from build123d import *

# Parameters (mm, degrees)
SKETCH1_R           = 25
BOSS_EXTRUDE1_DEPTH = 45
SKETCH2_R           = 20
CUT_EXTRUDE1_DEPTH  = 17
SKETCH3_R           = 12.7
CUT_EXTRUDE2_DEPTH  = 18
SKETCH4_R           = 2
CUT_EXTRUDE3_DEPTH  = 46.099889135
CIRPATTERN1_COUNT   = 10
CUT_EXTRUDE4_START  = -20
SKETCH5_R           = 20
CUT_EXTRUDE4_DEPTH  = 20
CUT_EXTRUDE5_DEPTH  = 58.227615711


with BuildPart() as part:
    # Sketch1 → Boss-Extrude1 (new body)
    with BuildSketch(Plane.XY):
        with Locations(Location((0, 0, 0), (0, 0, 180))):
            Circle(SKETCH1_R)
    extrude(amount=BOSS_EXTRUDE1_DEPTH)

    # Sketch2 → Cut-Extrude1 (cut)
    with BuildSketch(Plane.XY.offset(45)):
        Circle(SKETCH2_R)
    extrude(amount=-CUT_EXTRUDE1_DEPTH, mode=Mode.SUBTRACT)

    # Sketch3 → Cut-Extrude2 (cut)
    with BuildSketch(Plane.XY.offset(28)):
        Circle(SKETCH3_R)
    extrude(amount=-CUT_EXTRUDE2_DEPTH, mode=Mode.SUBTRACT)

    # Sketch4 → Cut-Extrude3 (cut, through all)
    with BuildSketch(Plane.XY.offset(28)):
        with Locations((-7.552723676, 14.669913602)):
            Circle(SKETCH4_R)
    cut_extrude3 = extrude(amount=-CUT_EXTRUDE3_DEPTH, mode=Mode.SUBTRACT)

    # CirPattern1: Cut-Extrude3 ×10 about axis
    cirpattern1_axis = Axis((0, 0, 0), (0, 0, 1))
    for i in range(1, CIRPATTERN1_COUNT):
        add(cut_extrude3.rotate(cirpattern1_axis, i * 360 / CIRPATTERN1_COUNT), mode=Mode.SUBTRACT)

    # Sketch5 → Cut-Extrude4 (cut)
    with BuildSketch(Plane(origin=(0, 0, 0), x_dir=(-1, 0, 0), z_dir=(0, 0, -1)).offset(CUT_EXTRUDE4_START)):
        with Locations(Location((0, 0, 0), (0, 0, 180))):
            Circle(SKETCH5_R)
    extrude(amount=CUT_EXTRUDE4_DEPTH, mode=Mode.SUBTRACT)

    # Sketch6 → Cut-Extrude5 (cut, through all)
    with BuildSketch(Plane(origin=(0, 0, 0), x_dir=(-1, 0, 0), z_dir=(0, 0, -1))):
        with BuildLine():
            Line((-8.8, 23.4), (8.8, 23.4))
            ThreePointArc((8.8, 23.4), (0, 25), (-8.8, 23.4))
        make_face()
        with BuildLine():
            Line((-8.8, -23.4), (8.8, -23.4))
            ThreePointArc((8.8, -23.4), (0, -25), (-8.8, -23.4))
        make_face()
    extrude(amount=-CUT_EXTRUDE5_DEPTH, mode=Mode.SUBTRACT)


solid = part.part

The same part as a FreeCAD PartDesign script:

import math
import FreeCAD as App
import Part
import Sketcher
from FreeCAD import Vector

doc = App.newDocument("Part")
params = doc.addObject("Spreadsheet::Sheet", "Params")
for row, (alias, value) in enumerate([
    ("sketch1_diameter", "50 mm"),
    ("pad1_length", "45 mm"),
    ("sketch2_diameter", "40 mm"),
    ("pocket1_length", "17 mm"),
    ("sketch3_diameter", "25.4 mm"),
    ("pocket2_length", "18 mm"),
    ("sketch4_diameter", "4 mm"),
    ("sketch5_diameter", "40 mm"),
    ("pocket4_length", "20 mm"),
    ("sketch6_radius", "25 mm"),
    ("sketch6_width", "17.6 mm"),
], start=1):
    params.set(f"A{row}", alias)
    params.set(f"B{row}", "=" + value)
    params.setAlias(f"B{row}", alias)

body = doc.addObject("PartDesign::Body", "Body")

sketch1 = body.newObject("Sketcher::SketchObject", "Sketch")
sketch1.AttachmentSupport = (doc.getObject("XY_Plane"), [""])
sketch1.MapMode = "FlatFace"
sketch1.addGeometry(Part.Circle(Vector(0, 0, 0), Vector(0, 0, 1), 25), False)
sketch1.addConstraint(Sketcher.Constraint("Coincident", 0, 3, -1, 1))
sketch1.addConstraint(Sketcher.Constraint("Diameter", 0, 50.0))
sketch1.setExpression("Constraints[1]", "Params.sketch1_diameter")
pad1 = body.newObject("PartDesign::Pad", "Pad")
pad1.Profile = sketch1
pad1.setExpression("Length", "Params.pad1_length")

sketch2 = body.newObject("Sketcher::SketchObject", "Sketch001")
sketch2.AttachmentSupport = (doc.getObject("XY_Plane"), [""])
sketch2.MapMode = "FlatFace"
sketch2.AttachmentOffset = App.Placement(Vector(0, 0, 45), App.Rotation())
sketch2.addGeometry(Part.Circle(Vector(0, 0, 0), Vector(0, 0, 1), 20), False)
sketch2.addConstraint(Sketcher.Constraint("Coincident", 0, 3, -1, 1))
sketch2.addConstraint(Sketcher.Constraint("Diameter", 0, 40.0))
sketch2.setExpression("Constraints[1]", "Params.sketch2_diameter")
pocket1 = body.newObject("PartDesign::Pocket", "Pocket")
pocket1.Profile = sketch2
pocket1.setExpression("Length", "Params.pocket1_length")

sketch3 = body.newObject("Sketcher::SketchObject", "Sketch002")
sketch3.AttachmentSupport = (doc.getObject("XY_Plane"), [""])
sketch3.MapMode = "FlatFace"
sketch3.AttachmentOffset = App.Placement(Vector(0, 0, 28), App.Rotation())
sketch3.addGeometry(Part.Circle(Vector(0, 0, 0), Vector(0, 0, 1), 12.7), False)
sketch3.addConstraint(Sketcher.Constraint("Coincident", 0, 3, -1, 1))
sketch3.addConstraint(Sketcher.Constraint("Diameter", 0, 25.4))
sketch3.setExpression("Constraints[1]", "Params.sketch3_diameter")
pocket2 = body.newObject("PartDesign::Pocket", "Pocket001")
pocket2.Profile = sketch3
pocket2.setExpression("Length", "Params.pocket2_length")

sketch4 = body.newObject("Sketcher::SketchObject", "Sketch003")
sketch4.AttachmentSupport = (doc.getObject("XY_Plane"), [""])
sketch4.MapMode = "FlatFace"
sketch4.AttachmentOffset = App.Placement(Vector(0, 0, 28), App.Rotation())
sketch4.addGeometry(Part.Circle(Vector(-7.552724, 14.669914, 0), Vector(0, 0, 1), 2), False)
sketch4.addConstraint(Sketcher.Constraint("Diameter", 0, 4.0))
sketch4.addConstraint(Sketcher.Constraint("DistanceX", 0, 3, -1, 1, 7.552724))
sketch4.addConstraint(Sketcher.Constraint("DistanceY", -1, 1, 0, 3, 14.669914))
sketch4.setExpression("Constraints[0]", "Params.sketch4_diameter")
pocket3 = body.newObject("PartDesign::Pocket", "Pocket002")
pocket3.Profile = sketch4
pocket3.Type = "ThroughAll"
doc.recompute()

polarpattern = body.newObject("PartDesign::PolarPattern", "PolarPattern")
polarpattern.Originals = [pocket3]
polarpattern.Axis = (doc.getObject("Z_Axis"), [""])
polarpattern.Angle = 360
polarpattern.Occurrences = 10
body.Tip = polarpattern

sketch5 = body.newObject("Sketcher::SketchObject", "Sketch004")
sketch5.AttachmentSupport = (doc.getObject("XY_Plane"), [""])
sketch5.MapMode = "FlatFace"
sketch5.AttachmentOffset = App.Placement(Vector(0, 0, 20), App.Rotation())
sketch5.addGeometry(Part.Circle(Vector(0, 0, 0), Vector(0, 0, 1), 20), False)
sketch5.addConstraint(Sketcher.Constraint("Coincident", 0, 3, -1, 1))
sketch5.addConstraint(Sketcher.Constraint("Diameter", 0, 40.0))
sketch5.setExpression("Constraints[1]", "Params.sketch5_diameter")
pocket4 = body.newObject("PartDesign::Pocket", "Pocket003")
pocket4.Profile = sketch5
pocket4.setExpression("Length", "Params.pocket4_length")

sketch6 = body.newObject("Sketcher::SketchObject", "Sketch005")
sketch6.AttachmentSupport = (doc.getObject("XY_Plane"), [""])
sketch6.MapMode = "FlatFace"
sketch6.addGeometry(Part.LineSegment(Vector(8.8, 23.4, 0), Vector(-8.8, 23.4, 0)), False)
sketch6.addGeometry(Part.ArcOfCircle(Part.Circle(Vector(0, 0, 0), Vector(0, 0, 1), 25), math.radians(69.390307), math.radians(110.609693)), False)
sketch6.addGeometry(Part.LineSegment(Vector(-8.8, -23.4, 0), Vector(8.8, -23.4, 0)), False)
sketch6.addGeometry(Part.ArcOfCircle(Part.Circle(Vector(0, 0, 0), Vector(0, 0, 1), 25), math.radians(-110.609693), math.radians(-69.390307)), False)
sketch6.addConstraint(Sketcher.Constraint("Coincident", 0, 1, 1, 1))
sketch6.addConstraint(Sketcher.Constraint("Coincident", 1, 2, 0, 2))
sketch6.addConstraint(Sketcher.Constraint("Coincident", 2, 1, 3, 1))
sketch6.addConstraint(Sketcher.Constraint("Coincident", 3, 2, 2, 2))
sketch6.addConstraint(Sketcher.Constraint("Horizontal", 0))
sketch6.addConstraint(Sketcher.Constraint("Horizontal", 2))
sketch6.addConstraint(Sketcher.Constraint("Coincident", 1, 3, -1, 1))
sketch6.addConstraint(Sketcher.Constraint("Coincident", 3, 3, -1, 1))
sketch6.addConstraint(Sketcher.Constraint("Equal", 1, 3))
sketch6.addConstraint(Sketcher.Constraint("Vertical", 1, 2, 2, 1))
sketch6.addConstraint(Sketcher.Constraint("Radius", 1, 25.0))
sketch6.addConstraint(Sketcher.Constraint("DistanceX", 0, 2, 0, 1, 17.6))
sketch6.setExpression("Constraints[10]", "Params.sketch6_radius")
sketch6.setExpression("Constraints[11]", "Params.sketch6_width")
pocket5 = body.newObject("PartDesign::Pocket", "Pocket004")
pocket5.Profile = sketch6
pocket5.Type = "ThroughAll"
pocket5.Reversed = True

doc.recompute()
